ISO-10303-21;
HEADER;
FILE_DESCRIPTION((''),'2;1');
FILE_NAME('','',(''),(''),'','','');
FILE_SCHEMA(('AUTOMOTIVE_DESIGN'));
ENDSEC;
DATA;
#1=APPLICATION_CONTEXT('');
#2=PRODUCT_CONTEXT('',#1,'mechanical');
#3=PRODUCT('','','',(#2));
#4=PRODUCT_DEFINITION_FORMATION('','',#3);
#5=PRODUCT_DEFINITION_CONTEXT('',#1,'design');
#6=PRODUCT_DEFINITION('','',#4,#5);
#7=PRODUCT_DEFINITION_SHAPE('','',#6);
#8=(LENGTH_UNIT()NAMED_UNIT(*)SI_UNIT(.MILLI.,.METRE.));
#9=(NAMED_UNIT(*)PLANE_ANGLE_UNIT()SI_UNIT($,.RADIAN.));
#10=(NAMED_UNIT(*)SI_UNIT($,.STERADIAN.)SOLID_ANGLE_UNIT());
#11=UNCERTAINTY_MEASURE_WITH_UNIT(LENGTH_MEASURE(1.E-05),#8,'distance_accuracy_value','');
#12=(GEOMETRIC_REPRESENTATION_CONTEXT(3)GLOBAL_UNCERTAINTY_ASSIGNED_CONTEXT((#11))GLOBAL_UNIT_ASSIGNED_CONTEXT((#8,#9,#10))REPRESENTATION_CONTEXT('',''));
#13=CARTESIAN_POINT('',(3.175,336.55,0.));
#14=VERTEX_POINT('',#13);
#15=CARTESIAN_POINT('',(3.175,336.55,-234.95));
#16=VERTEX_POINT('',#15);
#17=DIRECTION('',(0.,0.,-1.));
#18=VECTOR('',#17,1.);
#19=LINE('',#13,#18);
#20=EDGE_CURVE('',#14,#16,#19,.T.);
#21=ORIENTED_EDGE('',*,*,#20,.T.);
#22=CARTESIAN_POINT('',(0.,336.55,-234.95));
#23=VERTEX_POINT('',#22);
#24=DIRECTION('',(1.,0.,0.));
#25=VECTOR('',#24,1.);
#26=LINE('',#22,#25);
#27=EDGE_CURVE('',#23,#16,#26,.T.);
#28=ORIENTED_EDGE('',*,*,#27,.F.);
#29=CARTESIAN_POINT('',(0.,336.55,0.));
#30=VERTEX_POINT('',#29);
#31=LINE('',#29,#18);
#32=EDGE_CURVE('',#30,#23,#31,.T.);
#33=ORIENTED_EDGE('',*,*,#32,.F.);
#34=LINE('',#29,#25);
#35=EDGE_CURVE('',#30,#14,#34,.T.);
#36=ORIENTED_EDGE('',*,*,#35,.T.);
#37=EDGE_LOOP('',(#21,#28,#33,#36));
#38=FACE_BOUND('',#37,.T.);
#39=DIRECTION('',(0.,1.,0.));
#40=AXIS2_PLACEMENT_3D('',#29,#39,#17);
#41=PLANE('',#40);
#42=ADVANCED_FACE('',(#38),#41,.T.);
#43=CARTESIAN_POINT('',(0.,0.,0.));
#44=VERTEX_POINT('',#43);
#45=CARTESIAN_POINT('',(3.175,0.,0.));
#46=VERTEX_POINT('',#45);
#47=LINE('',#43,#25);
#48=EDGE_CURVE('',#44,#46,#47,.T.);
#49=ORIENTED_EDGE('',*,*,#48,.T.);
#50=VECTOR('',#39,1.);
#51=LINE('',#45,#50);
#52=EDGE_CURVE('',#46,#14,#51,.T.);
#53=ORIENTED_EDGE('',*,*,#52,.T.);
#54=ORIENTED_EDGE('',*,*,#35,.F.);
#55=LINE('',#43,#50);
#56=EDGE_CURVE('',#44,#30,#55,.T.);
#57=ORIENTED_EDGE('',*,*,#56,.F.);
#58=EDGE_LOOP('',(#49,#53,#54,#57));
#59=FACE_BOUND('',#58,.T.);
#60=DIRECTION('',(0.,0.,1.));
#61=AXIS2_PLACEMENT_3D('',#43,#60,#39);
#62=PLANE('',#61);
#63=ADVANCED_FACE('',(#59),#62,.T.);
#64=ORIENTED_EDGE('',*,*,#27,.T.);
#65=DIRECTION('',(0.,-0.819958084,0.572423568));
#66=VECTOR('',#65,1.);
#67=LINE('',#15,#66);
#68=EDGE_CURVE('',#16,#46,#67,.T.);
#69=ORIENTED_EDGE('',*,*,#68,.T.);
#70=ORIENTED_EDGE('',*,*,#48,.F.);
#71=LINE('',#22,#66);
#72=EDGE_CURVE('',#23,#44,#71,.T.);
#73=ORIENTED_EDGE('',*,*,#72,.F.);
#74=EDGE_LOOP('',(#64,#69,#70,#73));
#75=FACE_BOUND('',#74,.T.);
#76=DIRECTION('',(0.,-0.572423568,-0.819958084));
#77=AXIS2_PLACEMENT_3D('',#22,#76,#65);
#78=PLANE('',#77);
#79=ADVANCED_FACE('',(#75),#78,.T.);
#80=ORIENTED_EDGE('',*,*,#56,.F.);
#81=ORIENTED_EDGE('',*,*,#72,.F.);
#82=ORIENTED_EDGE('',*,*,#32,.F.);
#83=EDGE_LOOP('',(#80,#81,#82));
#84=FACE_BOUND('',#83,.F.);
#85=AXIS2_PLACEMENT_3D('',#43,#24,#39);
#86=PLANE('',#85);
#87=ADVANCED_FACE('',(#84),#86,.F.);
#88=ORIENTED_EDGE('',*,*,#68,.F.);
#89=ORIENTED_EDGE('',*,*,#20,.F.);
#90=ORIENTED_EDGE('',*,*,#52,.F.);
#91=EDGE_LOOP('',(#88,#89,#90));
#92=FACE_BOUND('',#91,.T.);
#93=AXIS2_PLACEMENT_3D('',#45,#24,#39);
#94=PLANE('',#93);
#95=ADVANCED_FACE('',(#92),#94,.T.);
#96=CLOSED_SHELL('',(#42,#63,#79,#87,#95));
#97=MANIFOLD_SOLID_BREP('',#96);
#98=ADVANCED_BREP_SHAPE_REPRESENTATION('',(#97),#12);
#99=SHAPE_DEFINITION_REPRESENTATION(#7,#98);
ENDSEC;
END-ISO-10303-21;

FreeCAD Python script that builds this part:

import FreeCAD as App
import Part
import Sketcher
from FreeCAD import Vector
Q = App.Units.Quantity

doc = App.newDocument("Part")
body = doc.addObject("PartDesign::Body", "Body")

sketch1 = body.newObject("Sketcher::SketchObject", "Sketch")
sketch1.AttachmentSupport = (doc.getObject("YZ_Plane"), [""])
sketch1.MapMode = "FlatFace"
sketch1.addGeometry([
    Part.LineSegment(Vector(337, 0, 0), Vector(0, 0, 0)),
    Part.LineSegment(Vector(0, 0, 0), Vector(337, -235, 0)),
    Part.LineSegment(Vector(337, -235, 0), Vector(337, 0, 0)),
], False)
sketch1.addConstraint([
    Sketcher.Constraint("Coincident", 0, 2, 1, 1),
    Sketcher.Constraint("Coincident", 1, 2, 2, 1),
    Sketcher.Constraint("Coincident", 2, 2, 0, 1),
    Sketcher.Constraint("Horizontal", 0),
    Sketcher.Constraint("Vertical", 2),
    Sketcher.Constraint("Coincident", 0, 2, -1, 1),
    Sketcher.Constraint("DistanceX", 0, 2, 0, 1, Q("13.25 in")),
    Sketcher.Constraint("DistanceY", 2, 1, 2, 2, Q("9.25 in")),
])
pad1 = body.newObject("PartDesign::Pad", "Pad")
pad1.Profile = sketch1
pad1.Length = Q("0.125 in")

doc.recompute()
